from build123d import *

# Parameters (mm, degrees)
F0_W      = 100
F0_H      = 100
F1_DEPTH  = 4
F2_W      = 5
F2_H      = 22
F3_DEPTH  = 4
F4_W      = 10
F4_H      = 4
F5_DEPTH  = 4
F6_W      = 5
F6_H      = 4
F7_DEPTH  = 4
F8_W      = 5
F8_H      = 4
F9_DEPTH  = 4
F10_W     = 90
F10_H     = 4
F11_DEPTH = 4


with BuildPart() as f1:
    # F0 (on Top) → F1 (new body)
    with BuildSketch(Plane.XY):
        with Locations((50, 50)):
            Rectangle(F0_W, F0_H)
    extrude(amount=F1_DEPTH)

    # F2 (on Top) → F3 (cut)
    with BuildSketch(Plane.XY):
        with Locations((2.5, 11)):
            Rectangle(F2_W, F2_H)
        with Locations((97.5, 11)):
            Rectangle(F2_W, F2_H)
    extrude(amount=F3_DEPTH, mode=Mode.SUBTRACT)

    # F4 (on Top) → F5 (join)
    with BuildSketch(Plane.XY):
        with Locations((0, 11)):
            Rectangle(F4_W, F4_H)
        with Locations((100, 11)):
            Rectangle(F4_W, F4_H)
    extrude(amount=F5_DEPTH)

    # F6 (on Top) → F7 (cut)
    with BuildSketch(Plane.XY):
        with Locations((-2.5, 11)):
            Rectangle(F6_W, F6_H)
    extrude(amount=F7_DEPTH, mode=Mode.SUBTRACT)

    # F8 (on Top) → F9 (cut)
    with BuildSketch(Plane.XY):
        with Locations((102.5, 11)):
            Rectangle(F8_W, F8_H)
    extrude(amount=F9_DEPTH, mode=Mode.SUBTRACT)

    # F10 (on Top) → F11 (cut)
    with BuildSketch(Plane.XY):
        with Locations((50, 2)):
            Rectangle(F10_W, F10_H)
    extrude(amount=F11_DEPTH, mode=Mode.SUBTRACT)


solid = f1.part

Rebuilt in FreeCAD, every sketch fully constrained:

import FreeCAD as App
import Part
import Sketcher

V = App.Vector

doc = App.newDocument("Part")
body = doc.addObject("PartDesign::Body", "Body")

sketch1 = body.newObject("Sketcher::SketchObject", "Sketch")
sketch1.AttachmentSupport = (doc.getObject("XY_Plane"), [""])
sketch1.MapMode = "FlatFace"
sketch1.addGeometry([
    Part.LineSegment(V(0, 100, 0), V(0, 0, 0)),
    Part.LineSegment(V(0, 0, 0), V(100, 0, 0)),
    Part.LineSegment(V(100, 0, 0), V(100, 100, 0)),
    Part.LineSegment(V(100, 100, 0), V(0, 100, 0)),
], False)
sketch1.addConstraint([
    Sketcher.Constraint("Coincident", 0, 2, 1, 1),
    Sketcher.Constraint("Coincident", 1, 2, 2, 1),
    Sketcher.Constraint("Coincident", 2, 2, 3, 1),
    Sketcher.Constraint("Coincident", 3, 2, 0, 1),
    Sketcher.Constraint("Vertical", 0),
    Sketcher.Constraint("Horizontal", 1),
    Sketcher.Constraint("Vertical", 2),
    Sketcher.Constraint("Horizontal", 3),
    Sketcher.Constraint("Coincident", 0, 2, -1, 1),
    Sketcher.Constraint("Equal", 3, 0),
    Sketcher.Constraint("DistanceX", 1, 1, 1, 2, 100.0),
])
pad1 = body.newObject("PartDesign::Pad", "Pad")
pad1.Profile = sketch1
pad1.Length = 4

sketch2 = body.newObject("Sketcher::SketchObject", "Sketch001")
sketch2.AttachmentSupport = (doc.getObject("XY_Plane"), [""])
sketch2.MapMode = "FlatFace"
sketch2.addGeometry([
    Part.LineSegment(V(0, 22, 0), V(0, 0, 0)),
    Part.LineSegment(V(0, 0, 0), V(5, 0, 0)),
    Part.LineSegment(V(5, 0, 0), V(5, 22, 0)),
    Part.LineSegment(V(5, 22, 0), V(0, 22, 0)),
    Part.LineSegment(V(95, 22, 0), V(95, 0, 0)),
    Part.LineSegment(V(95, 0, 0), V(100, 0, 0)),
    Part.LineSegment(V(100, 0, 0), V(100, 22, 0)),
    Part.LineSegment(V(100, 22, 0), V(95, 22, 0)),
], False)
sketch2.addConstraint([
    Sketcher.Constraint("Coincident", 0, 2, 1, 1),
    Sketcher.Constraint("Coincident", 1, 2, 2, 1),
    Sketcher.Constraint("Coincident", 2, 2, 3, 1),
    Sketcher.Constraint("Coincident", 3, 2, 0, 1),
    Sketcher.Constraint("Coincident", 4, 2, 5, 1),
    Sketcher.Constraint("Coincident", 5, 2, 6, 1),
    Sketcher.Constraint("Coincident", 6, 2, 7, 1),
    Sketcher.Constraint("Coincident", 7, 2, 4, 1),
    Sketcher.Constraint("Vertical", 0),
    Sketcher.Constraint("Horizontal", 1),
    Sketcher.Constraint("Vertical", 2),
    Sketcher.Constraint("Horizontal", 3),
    Sketcher.Constraint("Vertical", 4),
    Sketcher.Constraint("Horizontal", 5),
    Sketcher.Constraint("Vertical", 6),
    Sketcher.Constraint("Horizontal", 7),
    Sketcher.Constraint("Coincident", 0, 2, -1, 1),
    Sketcher.Constraint("PointOnObject", 4, 2, -1),
    Sketcher.Constraint("Horizontal", 3, 2, 6, 2),
    Sketcher.Constraint("Equal", 3, 5),
    Sketcher.Constraint("DistanceX", 1, 1, 1, 2, 5.0),
    Sketcher.Constraint("DistanceY", 0, 2, 0, 1, 22.0),
    Sketcher.Constraint("DistanceX", -1, 1, 4, 2, 95.0),
])
pocket1 = body.newObject("PartDesign::Pocket", "Pocket")
pocket1.Profile = sketch2
pocket1.Length = 4
pocket1.Reversed = True

sketch3 = body.newObject("Sketcher::SketchObject", "Sketch002")
sketch3.AttachmentSupport = (doc.getObject("XY_Plane"), [""])
sketch3.MapMode = "FlatFace"
sketch3.addGeometry([
    Part.LineSegment(V(-5, 13, 0), V(-5, 9, 0)),
    Part.LineSegment(V(-5, 9, 0), V(5, 9, 0)),
    Part.LineSegment(V(5, 9, 0), V(5, 13, 0)),
    Part.LineSegment(V(5, 13, 0), V(-5, 13, 0)),
    Part.LineSegment(V(95, 13, 0), V(95, 9, 0)),
    Part.LineSegment(V(95, 9, 0), V(105, 9, 0)),
    Part.LineSegment(V(105, 9, 0), V(105, 13, 0)),
    Part.LineSegment(V(105, 13, 0), V(95, 13, 0)),
], False)
sketch3.addConstraint([
    Sketcher.Constraint("Coincident", 0, 2, 1, 1),
    Sketcher.Constraint("Coincident", 1, 2, 2, 1),
    Sketcher.Constraint("Coincident", 2, 2, 3, 1),
    Sketcher.Constraint("Coincident", 3, 2, 0, 1),
    Sketcher.Constraint("Coincident", 4, 2, 5, 1),
    Sketcher.Constraint("Coincident", 5, 2, 6, 1),
    Sketcher.Constraint("Coincident", 6, 2, 7, 1),
    Sketcher.Constraint("Coincident", 7, 2, 4, 1),
    Sketcher.Constraint("Vertical", 0),
    Sketcher.Constraint("Horizontal", 1),
    Sketcher.Constraint("Vertical", 2),
    Sketcher.Constraint("Horizontal", 3),
    Sketcher.Constraint("Vertical", 4),
    Sketcher.Constraint("Horizontal", 5),
    Sketcher.Constraint("Vertical", 6),
    Sketcher.Constraint("Horizontal", 7),
    Sketcher.Constraint("Horizontal", 1, 2, 4, 2),
    Sketcher.Constraint("Horizontal", 3, 2, 6, 2),
    Sketcher.Constraint("Equal", 3, 5),
    Sketcher.Constraint("DistanceX", 1, 1, 1, 2, 10.0),
    Sketcher.Constraint("DistanceY", 0, 2, 0, 1, 4.0),
    Sketcher.Constraint("DistanceX", 0, 2, -1, 1, 5.0),
    Sketcher.Constraint("DistanceY", -1, 1, 0, 2, 9.0),
    Sketcher.Constraint("DistanceX", -1, 1, 4, 2, 95.0),
])
pad2 = body.newObject("PartDesign::Pad", "Pad001")
pad2.Profile = sketch3
pad2.Length = 4

sketch4 = body.newObject("Sketcher::SketchObject", "Sketch003")
sketch4.AttachmentSupport = (doc.getObject("XY_Plane"), [""])
sketch4.MapMode = "FlatFace"
sketch4.addGeometry([
    Part.LineSegment(V(-5, 13, 0), V(-5, 9, 0)),
    Part.LineSegment(V(-5, 9, 0), V(0, 9, 0)),
    Part.LineSegment(V(0, 9, 0), V(0, 13, 0)),
    Part.LineSegment(V(0, 13, 0), V(-5, 13, 0)),
], False)
sketch4.addConstraint([
    Sketcher.Constraint("Coincident", 0, 2, 1, 1),
    Sketcher.Constraint("Coincident", 1, 2, 2, 1),
    Sketcher.Constraint("Coincident", 2, 2, 3, 1),
    Sketcher.Constraint("Coincident", 3, 2, 0, 1),
    Sketcher.Constraint("Vertical", 0),
    Sketcher.Constraint("Horizontal", 1),
    Sketcher.Constraint("Vertical", 2),
    Sketcher.Constraint("Horizontal", 3),
    Sketcher.Constraint("PointOnObject", 1, 2, -2),
    Sketcher.Constraint("DistanceX", 1, 1, 1, 2, 5.0),
    Sketcher.Constraint("DistanceY", 0, 2, 0, 1, 4.0),
    Sketcher.Constraint("DistanceY", -1, 1, 0, 2, 9.0),
])
pocket2 = body.newObject("PartDesign::Pocket", "Pocket001")
pocket2.Profile = sketch4
pocket2.Length = 4
pocket2.Reversed = True

sketch5 = body.newObject("Sketcher::SketchObject", "Sketch004")
sketch5.AttachmentSupport = (doc.getObject("XY_Plane"), [""])
sketch5.MapMode = "FlatFace"
sketch5.addGeometry([
    Part.LineSegment(V(100, 13, 0), V(100, 9, 0)),
    Part.LineSegment(V(100, 9, 0), V(105, 9, 0)),
    Part.LineSegment(V(105, 9, 0), V(105, 13, 0)),
    Part.LineSegment(V(105, 13, 0), V(100, 13, 0)),
], False)
sketch5.addConstraint([
    Sketcher.Constraint("Coincident", 0, 2, 1, 1),
    Sketcher.Constraint("Coincident", 1, 2, 2, 1),
    Sketcher.Constraint("Coincident", 2, 2, 3, 1),
    Sketcher.Constraint("Coincident", 3, 2, 0, 1),
    Sketcher.Constraint("Vertical", 0),
    Sketcher.Constraint("Horizontal", 1),
    Sketcher.Constraint("Vertical", 2),
    Sketcher.Constraint("Horizontal", 3),
    Sketcher.Constraint("DistanceX", 1, 1, 1, 2, 5.0),
    Sketcher.Constraint("DistanceY", 0, 2, 0, 1, 4.0),
    Sketcher.Constraint("DistanceX", -1, 1, 0, 2, 100.0),
    Sketcher.Constraint("DistanceY", -1, 1, 0, 2, 9.0),
])
pocket3 = body.newObject("PartDesign::Pocket", "Pocket002")
pocket3.Profile = sketch5
pocket3.Length = 4
pocket3.Reversed = True

sketch6 = body.newObject("Sketcher::SketchObject", "Sketch005")
sketch6.AttachmentSupport = (doc.getObject("XY_Plane"), [""])
sketch6.MapMode = "FlatFace"
sketch6.addGeometry([
    Part.LineSegment(V(5, 4, 0), V(5, 0, 0)),
    Part.LineSegment(V(5, 0, 0), V(95, 0, 0)),
    Part.LineSegment(V(95, 0, 0), V(95, 4, 0)),
    Part.LineSegment(V(95, 4, 0), V(5, 4, 0)),
], False)
sketch6.addConstraint([
    Sketcher.Constraint("Coincident", 0, 2, 1, 1),
    Sketcher.Constraint("Coincident", 1, 2, 2, 1),
    Sketcher.Constraint("Coincident", 2, 2, 3, 1),
    Sketcher.Constraint("Coincident", 3, 2, 0, 1),
    Sketcher.Constraint("Vertical", 0),
    Sketcher.Constraint("Horizontal", 1),
    Sketcher.Constraint("Vertical", 2),
    Sketcher.Constraint("Horizontal", 3),
    Sketcher.Constraint("PointOnObject", 0, 2, -1),
    Sketcher.Constraint("DistanceX", 1, 1, 1, 2, 90.0),
    Sketcher.Constraint("DistanceY", 0, 2, 0, 1, 4.0),
    Sketcher.Constraint("DistanceX", -1, 1, 0, 2, 5.0),
])
pocket4 = body.newObject("PartDesign::Pocket", "Pocket003")
pocket4.Profile = sketch6
pocket4.Length = 4
pocket4.Reversed = True

doc.recompute()
